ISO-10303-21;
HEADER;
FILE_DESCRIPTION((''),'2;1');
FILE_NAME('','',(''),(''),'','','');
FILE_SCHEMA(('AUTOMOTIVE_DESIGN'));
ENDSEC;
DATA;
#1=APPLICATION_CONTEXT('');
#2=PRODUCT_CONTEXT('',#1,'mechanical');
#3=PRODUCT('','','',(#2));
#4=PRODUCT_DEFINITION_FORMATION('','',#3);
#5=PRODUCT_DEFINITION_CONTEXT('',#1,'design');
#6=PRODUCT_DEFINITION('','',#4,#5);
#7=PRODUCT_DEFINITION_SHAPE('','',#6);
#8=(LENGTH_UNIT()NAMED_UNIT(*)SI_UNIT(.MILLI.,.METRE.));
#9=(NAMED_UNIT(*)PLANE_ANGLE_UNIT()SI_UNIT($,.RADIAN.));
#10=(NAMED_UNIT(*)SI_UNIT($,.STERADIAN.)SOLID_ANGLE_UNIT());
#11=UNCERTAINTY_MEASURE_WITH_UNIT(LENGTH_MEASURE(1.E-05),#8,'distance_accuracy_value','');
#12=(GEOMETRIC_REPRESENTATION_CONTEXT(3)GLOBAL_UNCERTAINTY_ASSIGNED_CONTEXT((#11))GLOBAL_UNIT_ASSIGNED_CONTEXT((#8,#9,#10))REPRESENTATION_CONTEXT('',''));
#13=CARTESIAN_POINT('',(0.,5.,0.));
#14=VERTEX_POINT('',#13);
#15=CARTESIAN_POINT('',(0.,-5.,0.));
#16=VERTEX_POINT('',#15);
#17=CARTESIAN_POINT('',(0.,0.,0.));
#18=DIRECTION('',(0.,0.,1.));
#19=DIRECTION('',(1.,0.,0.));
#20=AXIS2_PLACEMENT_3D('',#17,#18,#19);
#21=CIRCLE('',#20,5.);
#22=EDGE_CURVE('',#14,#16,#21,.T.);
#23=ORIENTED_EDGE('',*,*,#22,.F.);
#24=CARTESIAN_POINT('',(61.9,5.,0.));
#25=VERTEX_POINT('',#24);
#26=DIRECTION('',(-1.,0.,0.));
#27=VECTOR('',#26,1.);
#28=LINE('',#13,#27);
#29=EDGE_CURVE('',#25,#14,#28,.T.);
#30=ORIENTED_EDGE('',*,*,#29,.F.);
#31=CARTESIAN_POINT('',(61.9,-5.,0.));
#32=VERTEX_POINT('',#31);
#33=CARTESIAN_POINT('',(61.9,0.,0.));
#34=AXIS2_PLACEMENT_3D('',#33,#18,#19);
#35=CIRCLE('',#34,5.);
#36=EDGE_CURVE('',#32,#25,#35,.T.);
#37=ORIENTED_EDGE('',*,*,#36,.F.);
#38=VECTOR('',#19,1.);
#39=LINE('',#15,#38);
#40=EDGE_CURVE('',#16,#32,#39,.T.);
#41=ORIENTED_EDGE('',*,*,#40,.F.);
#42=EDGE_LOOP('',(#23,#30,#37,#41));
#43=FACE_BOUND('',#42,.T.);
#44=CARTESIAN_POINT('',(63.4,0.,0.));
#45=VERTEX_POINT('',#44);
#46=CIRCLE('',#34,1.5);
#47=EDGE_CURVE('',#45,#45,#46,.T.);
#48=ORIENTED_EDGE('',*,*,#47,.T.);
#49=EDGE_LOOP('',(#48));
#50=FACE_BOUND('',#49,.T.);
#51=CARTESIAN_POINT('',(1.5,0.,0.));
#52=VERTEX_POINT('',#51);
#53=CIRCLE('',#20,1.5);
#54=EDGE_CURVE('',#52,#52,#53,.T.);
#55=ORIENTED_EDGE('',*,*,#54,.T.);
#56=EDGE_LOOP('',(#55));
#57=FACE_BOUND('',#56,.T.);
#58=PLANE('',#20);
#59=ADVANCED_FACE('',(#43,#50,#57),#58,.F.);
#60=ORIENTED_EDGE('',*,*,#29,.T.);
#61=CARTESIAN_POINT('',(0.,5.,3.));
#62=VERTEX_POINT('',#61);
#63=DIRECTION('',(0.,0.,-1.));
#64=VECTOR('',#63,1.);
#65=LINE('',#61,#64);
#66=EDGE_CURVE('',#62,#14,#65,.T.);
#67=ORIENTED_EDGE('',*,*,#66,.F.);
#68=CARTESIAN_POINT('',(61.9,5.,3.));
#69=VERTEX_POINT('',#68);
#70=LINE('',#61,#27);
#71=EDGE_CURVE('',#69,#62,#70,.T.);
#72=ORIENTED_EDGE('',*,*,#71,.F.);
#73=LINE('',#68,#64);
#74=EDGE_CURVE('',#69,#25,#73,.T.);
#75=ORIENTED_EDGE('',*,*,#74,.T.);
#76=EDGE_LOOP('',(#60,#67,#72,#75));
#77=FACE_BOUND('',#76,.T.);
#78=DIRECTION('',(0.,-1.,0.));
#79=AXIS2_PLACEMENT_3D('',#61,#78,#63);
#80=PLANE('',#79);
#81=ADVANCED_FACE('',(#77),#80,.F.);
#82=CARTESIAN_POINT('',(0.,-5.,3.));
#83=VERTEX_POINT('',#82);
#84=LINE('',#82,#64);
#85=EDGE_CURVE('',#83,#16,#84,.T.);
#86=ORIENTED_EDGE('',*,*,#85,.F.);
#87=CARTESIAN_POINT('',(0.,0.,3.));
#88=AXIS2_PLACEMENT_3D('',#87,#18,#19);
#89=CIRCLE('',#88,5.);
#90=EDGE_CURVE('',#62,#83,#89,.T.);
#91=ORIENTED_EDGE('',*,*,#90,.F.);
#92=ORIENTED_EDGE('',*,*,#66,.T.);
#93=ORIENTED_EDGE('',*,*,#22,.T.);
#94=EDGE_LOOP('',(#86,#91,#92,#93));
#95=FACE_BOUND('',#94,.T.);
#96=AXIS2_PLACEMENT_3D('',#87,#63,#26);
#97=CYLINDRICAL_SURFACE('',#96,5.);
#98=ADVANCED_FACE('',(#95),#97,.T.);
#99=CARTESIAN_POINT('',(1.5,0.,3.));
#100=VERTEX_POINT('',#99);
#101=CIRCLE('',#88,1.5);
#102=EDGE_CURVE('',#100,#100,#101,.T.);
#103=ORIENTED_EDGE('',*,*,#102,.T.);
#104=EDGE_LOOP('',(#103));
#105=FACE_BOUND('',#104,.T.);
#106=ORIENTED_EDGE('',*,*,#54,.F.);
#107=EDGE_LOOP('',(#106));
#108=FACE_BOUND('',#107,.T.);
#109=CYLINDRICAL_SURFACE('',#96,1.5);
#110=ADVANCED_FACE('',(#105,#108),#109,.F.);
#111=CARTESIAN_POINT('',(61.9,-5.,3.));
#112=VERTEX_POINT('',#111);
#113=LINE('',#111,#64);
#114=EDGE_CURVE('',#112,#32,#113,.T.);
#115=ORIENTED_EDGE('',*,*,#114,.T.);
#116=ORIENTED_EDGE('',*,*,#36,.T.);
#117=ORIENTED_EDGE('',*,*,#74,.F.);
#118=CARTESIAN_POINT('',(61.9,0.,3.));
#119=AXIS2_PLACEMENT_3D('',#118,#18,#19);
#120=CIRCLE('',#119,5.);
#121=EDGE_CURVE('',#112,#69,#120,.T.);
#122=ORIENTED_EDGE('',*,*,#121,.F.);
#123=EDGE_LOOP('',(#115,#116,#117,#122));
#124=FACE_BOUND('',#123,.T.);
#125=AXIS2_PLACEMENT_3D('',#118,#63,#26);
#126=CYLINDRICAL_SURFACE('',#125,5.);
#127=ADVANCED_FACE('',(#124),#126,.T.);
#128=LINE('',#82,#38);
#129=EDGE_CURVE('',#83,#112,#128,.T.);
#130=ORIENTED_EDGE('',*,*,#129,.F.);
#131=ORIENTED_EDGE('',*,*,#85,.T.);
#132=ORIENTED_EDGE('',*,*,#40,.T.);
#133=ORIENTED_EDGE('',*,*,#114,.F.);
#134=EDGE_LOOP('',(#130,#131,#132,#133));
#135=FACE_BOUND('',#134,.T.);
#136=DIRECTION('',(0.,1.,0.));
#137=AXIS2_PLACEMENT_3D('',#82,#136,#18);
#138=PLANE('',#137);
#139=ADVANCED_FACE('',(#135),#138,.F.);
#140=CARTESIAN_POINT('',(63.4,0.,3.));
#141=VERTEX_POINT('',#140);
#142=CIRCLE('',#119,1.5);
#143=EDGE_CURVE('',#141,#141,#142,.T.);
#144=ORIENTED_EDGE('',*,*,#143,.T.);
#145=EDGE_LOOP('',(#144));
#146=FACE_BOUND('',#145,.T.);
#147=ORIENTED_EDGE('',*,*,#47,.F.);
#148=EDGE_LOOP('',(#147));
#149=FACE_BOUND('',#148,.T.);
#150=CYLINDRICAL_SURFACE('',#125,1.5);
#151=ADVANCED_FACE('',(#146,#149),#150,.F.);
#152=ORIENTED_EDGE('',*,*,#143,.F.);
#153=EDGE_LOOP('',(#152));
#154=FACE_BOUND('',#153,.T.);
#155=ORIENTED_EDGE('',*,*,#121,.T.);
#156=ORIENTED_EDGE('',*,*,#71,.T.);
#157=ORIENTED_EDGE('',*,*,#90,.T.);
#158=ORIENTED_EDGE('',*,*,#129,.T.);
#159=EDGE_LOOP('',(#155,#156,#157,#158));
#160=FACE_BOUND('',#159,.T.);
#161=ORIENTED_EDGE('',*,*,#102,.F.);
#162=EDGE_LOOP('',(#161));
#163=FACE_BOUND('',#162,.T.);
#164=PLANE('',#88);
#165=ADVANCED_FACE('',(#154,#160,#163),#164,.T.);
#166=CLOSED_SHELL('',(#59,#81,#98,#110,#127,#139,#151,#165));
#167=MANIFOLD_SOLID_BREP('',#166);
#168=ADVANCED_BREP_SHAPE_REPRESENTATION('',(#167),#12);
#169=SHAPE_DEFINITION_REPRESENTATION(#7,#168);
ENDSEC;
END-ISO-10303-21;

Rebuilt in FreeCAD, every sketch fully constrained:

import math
import FreeCAD as App
import Part
import Sketcher

V = App.Vector

doc = App.newDocument("Part")
body = doc.addObject("PartDesign::Body", "Body")

# Sketch on XY plane
sketch1 = body.newObject("Sketcher::SketchObject", "Sketch")
sketch1.AttachmentSupport = (doc.getObject("XY_Plane"), [""])
sketch1.MapMode = "FlatFace"
sketch1.addGeometry([
    Part.LineSegment(V(61.9, 5, 0), V(0, 5, 0)),  # 0
    Part.ArcOfCircle(Part.Circle(V(0, 0, 0), V(0, 0, 1), 5), math.radians(90), math.radians(270)),  # 1
    Part.LineSegment(V(0, -5, 0), V(61.9, -5, 0)),  # 2
    Part.ArcOfCircle(Part.Circle(V(61.9, 0, 0), V(0, 0, 1), 5), math.radians(-90), math.radians(90)),  # 3
    Part.Circle(V(61.9, 0, 0), V(0, 0, 1), 1.5),  # 4
    Part.Circle(V(0, 0, 0), V(0, 0, 1), 1.5),  # 5
], False)
sketch1.addConstraint([
    Sketcher.Constraint("Tangent", 0, 2, 1, 1),
    Sketcher.Constraint("Tangent", 1, 2, 2, 1),
    Sketcher.Constraint("Tangent", 2, 2, 3, 1),
    Sketcher.Constraint("Tangent", 3, 2, 0, 1),
    Sketcher.Constraint("Horizontal", 0),
    Sketcher.Constraint("Horizontal", 2),
    Sketcher.Constraint("Coincident", 1, 3, -1, 1),
    Sketcher.Constraint("Coincident", 5, 3, -1, 1),
    Sketcher.Constraint("Coincident", 4, 3, 3, 3),
    Sketcher.Constraint("Equal", 4, 5),
    Sketcher.Constraint("Diameter", 4, 3.0),
    Sketcher.Constraint("Radius", 1, 5.0),
    Sketcher.Constraint("DistanceX", 0, 2, 0, 1, 61.9),
])
pad1 = body.newObject("PartDesign::Pad", "Pad")
pad1.Profile = sketch1
pad1.Length = 3

doc.recompute()
